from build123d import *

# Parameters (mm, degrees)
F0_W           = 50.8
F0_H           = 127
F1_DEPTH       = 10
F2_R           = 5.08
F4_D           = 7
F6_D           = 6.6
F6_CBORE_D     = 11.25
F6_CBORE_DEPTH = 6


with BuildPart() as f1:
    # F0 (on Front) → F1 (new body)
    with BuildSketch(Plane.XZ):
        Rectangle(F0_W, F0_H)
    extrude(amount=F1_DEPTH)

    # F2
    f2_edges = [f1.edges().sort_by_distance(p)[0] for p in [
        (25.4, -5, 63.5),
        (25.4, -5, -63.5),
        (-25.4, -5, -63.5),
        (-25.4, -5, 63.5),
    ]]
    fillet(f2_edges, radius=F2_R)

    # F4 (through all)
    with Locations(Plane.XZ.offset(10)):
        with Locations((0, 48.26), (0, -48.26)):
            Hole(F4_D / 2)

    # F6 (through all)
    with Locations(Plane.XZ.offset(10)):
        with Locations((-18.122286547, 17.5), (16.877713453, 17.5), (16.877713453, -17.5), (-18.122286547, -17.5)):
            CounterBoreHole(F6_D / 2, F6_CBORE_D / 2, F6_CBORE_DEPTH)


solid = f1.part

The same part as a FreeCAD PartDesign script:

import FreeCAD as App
import Part
import Sketcher
from FreeCAD import Vector
Q = App.Units.Quantity


def edges_at(feature, points):
    """Names of the edges that pass closest to the given points."""
    edges = feature.Shape.Edges
    near = lambda p: min(range(len(edges)), key=lambda i: edges[i].distToShape(Part.Vertex(*p))[0])
    return sorted({f"Edge{near(p) + 1}" for p in points})

doc = App.newDocument("Part")
body = doc.addObject("PartDesign::Body", "Body")

# Sketch on XZ plane
sketch1 = body.newObject("Sketcher::SketchObject", "Sketch")
sketch1.AttachmentSupport = (doc.getObject("XZ_Plane"), [""])
sketch1.MapMode = "FlatFace"
sketch1.addGeometry(Part.LineSegment(Vector(-25, 64, 0), Vector(-25, -64, 0)), False)
sketch1.addGeometry(Part.LineSegment(Vector(-25, -64, 0), Vector(25, -64, 0)), False)
sketch1.addGeometry(Part.LineSegment(Vector(25, -64, 0), Vector(25, 64, 0)), False)
sketch1.addGeometry(Part.LineSegment(Vector(25, 64, 0), Vector(-25, 64, 0)), False)
sketch1.addConstraint(Sketcher.Constraint("Coincident", 0, 2, 1, 1))
sketch1.addConstraint(Sketcher.Constraint("Coincident", 1, 2, 2, 1))
sketch1.addConstraint(Sketcher.Constraint("Coincident", 2, 2, 3, 1))
sketch1.addConstraint(Sketcher.Constraint("Coincident", 3, 2, 0, 1))
sketch1.addConstraint(Sketcher.Constraint("Vertical", 0))
sketch1.addConstraint(Sketcher.Constraint("Horizontal", 1))
sketch1.addConstraint(Sketcher.Constraint("Vertical", 2))
sketch1.addConstraint(Sketcher.Constraint("Horizontal", 3))
sketch1.addConstraint(Sketcher.Constraint("Symmetric", 0, 2, 2, 2, -1, 1))
sketch1.addConstraint(Sketcher.Constraint("DistanceY", 0, 2, 0, 1, Q("127 mm")))
sketch1.addConstraint(Sketcher.Constraint("DistanceX", 1, 1, 1, 2, Q("50.8 mm")))
pad1 = body.newObject("PartDesign::Pad", "Pad")
pad1.Profile = sketch1
pad1.Length = 10
doc.recompute()

fillet = body.newObject("PartDesign::Fillet", "Fillet")
fillet.Base = (pad1, edges_at(pad1, [
    (25.4, -5, 63.5),
    (25.4, -5, -63.5),
    (-25.4, -5, -63.5),
    (-25.4, -5, 63.5),
]))
fillet.Radius = 5.08

# Sketch on XZ plane
sketch2 = body.newObject("Sketcher::SketchObject", "Sketch001")
sketch2.AttachmentSupport = (doc.getObject("XZ_Plane"), [""])
sketch2.MapMode = "FlatFace"
sketch2.AttachmentOffset = App.Placement(Vector(0, 0, 10), App.Rotation())
sketch2.addGeometry(Part.Circle(Vector(0, 48.3, 0), Vector(0, 0, 1), 3.5), False)
sketch2.addGeometry(Part.Circle(Vector(0, -48.3, 0), Vector(0, 0, 1), 3.5), False)
sketch2.addConstraint(Sketcher.Constraint("Equal", 0, 1))
sketch2.addConstraint(Sketcher.Constraint("Symmetric", 0, 3, 1, 3, -1, 1))
sketch2.addConstraint(Sketcher.Constraint("PointOnObject", 0, 3, -2))
sketch2.addConstraint(Sketcher.Constraint("Diameter", 0, Q("7 mm")))
sketch2.addConstraint(Sketcher.Constraint("DistanceY", -1, 1, 0, 3, Q("48.26 mm")))
doc.recompute()
hole = body.newObject("PartDesign::Hole", "Hole")
hole.Profile = sketch2
hole.ThreadType = "None"
hole.Diameter = 7
hole.DepthType = "ThroughAll"

# Sketch on XZ plane
sketch3 = body.newObject("Sketcher::SketchObject", "Sketch002")
sketch3.AttachmentSupport = (doc.getObject("XZ_Plane"), [""])
sketch3.MapMode = "FlatFace"
sketch3.AttachmentOffset = App.Placement(Vector(0, 0, 10), App.Rotation())
sketch3.addGeometry(Part.Circle(Vector(-18.1, 17.5, 0), Vector(0, 0, 1), 3.3), False)
sketch3.addGeometry(Part.Circle(Vector(16.9, 17.5, 0), Vector(0, 0, 1), 3.3), False)
sketch3.addGeometry(Part.Circle(Vector(16.9, -17.5, 0), Vector(0, 0, 1), 3.3), False)
sketch3.addGeometry(Part.Circle(Vector(-18.1, -17.5, 0), Vector(0, 0, 1), 3.3), False)
sketch3.addConstraint(Sketcher.Constraint("Equal", 0, 1))
sketch3.addConstraint(Sketcher.Constraint("Equal", 1, 2))
sketch3.addConstraint(Sketcher.Constraint("Equal", 2, 3))
sketch3.addConstraint(Sketcher.Constraint("Symmetric", 1, 3, 2, 3, -1))
sketch3.addConstraint(Sketcher.Constraint("Symmetric", 0, 3, 3, 3, -1))
sketch3.addConstraint(Sketcher.Constraint("Horizontal", 0, 3, 1, 3))
sketch3.addConstraint(Sketcher.Constraint("Diameter", 0, Q("6.6 mm")))
sketch3.addConstraint(Sketcher.Constraint("DistanceX", 0, 3, 1, 3, Q("35 mm")))
sketch3.addConstraint(Sketcher.Constraint("DistanceY", 2, 3, 1, 3, Q("35 mm")))
sketch3.addConstraint(Sketcher.Constraint("DistanceX", 0, 3, -1, 1, Q("18.122287 mm")))
doc.recompute()
hole2 = body.newObject("PartDesign::Hole", "Hole001")
hole2.Profile = sketch3
hole2.ThreadType = "None"
hole2.Diameter = 6.6
hole2.DepthType = "ThroughAll"
hole2.HoleCutType = "Counterbore"
hole2.HoleCutDiameter = 11.25
hole2.HoleCutDepth = 6

doc.recompute()
